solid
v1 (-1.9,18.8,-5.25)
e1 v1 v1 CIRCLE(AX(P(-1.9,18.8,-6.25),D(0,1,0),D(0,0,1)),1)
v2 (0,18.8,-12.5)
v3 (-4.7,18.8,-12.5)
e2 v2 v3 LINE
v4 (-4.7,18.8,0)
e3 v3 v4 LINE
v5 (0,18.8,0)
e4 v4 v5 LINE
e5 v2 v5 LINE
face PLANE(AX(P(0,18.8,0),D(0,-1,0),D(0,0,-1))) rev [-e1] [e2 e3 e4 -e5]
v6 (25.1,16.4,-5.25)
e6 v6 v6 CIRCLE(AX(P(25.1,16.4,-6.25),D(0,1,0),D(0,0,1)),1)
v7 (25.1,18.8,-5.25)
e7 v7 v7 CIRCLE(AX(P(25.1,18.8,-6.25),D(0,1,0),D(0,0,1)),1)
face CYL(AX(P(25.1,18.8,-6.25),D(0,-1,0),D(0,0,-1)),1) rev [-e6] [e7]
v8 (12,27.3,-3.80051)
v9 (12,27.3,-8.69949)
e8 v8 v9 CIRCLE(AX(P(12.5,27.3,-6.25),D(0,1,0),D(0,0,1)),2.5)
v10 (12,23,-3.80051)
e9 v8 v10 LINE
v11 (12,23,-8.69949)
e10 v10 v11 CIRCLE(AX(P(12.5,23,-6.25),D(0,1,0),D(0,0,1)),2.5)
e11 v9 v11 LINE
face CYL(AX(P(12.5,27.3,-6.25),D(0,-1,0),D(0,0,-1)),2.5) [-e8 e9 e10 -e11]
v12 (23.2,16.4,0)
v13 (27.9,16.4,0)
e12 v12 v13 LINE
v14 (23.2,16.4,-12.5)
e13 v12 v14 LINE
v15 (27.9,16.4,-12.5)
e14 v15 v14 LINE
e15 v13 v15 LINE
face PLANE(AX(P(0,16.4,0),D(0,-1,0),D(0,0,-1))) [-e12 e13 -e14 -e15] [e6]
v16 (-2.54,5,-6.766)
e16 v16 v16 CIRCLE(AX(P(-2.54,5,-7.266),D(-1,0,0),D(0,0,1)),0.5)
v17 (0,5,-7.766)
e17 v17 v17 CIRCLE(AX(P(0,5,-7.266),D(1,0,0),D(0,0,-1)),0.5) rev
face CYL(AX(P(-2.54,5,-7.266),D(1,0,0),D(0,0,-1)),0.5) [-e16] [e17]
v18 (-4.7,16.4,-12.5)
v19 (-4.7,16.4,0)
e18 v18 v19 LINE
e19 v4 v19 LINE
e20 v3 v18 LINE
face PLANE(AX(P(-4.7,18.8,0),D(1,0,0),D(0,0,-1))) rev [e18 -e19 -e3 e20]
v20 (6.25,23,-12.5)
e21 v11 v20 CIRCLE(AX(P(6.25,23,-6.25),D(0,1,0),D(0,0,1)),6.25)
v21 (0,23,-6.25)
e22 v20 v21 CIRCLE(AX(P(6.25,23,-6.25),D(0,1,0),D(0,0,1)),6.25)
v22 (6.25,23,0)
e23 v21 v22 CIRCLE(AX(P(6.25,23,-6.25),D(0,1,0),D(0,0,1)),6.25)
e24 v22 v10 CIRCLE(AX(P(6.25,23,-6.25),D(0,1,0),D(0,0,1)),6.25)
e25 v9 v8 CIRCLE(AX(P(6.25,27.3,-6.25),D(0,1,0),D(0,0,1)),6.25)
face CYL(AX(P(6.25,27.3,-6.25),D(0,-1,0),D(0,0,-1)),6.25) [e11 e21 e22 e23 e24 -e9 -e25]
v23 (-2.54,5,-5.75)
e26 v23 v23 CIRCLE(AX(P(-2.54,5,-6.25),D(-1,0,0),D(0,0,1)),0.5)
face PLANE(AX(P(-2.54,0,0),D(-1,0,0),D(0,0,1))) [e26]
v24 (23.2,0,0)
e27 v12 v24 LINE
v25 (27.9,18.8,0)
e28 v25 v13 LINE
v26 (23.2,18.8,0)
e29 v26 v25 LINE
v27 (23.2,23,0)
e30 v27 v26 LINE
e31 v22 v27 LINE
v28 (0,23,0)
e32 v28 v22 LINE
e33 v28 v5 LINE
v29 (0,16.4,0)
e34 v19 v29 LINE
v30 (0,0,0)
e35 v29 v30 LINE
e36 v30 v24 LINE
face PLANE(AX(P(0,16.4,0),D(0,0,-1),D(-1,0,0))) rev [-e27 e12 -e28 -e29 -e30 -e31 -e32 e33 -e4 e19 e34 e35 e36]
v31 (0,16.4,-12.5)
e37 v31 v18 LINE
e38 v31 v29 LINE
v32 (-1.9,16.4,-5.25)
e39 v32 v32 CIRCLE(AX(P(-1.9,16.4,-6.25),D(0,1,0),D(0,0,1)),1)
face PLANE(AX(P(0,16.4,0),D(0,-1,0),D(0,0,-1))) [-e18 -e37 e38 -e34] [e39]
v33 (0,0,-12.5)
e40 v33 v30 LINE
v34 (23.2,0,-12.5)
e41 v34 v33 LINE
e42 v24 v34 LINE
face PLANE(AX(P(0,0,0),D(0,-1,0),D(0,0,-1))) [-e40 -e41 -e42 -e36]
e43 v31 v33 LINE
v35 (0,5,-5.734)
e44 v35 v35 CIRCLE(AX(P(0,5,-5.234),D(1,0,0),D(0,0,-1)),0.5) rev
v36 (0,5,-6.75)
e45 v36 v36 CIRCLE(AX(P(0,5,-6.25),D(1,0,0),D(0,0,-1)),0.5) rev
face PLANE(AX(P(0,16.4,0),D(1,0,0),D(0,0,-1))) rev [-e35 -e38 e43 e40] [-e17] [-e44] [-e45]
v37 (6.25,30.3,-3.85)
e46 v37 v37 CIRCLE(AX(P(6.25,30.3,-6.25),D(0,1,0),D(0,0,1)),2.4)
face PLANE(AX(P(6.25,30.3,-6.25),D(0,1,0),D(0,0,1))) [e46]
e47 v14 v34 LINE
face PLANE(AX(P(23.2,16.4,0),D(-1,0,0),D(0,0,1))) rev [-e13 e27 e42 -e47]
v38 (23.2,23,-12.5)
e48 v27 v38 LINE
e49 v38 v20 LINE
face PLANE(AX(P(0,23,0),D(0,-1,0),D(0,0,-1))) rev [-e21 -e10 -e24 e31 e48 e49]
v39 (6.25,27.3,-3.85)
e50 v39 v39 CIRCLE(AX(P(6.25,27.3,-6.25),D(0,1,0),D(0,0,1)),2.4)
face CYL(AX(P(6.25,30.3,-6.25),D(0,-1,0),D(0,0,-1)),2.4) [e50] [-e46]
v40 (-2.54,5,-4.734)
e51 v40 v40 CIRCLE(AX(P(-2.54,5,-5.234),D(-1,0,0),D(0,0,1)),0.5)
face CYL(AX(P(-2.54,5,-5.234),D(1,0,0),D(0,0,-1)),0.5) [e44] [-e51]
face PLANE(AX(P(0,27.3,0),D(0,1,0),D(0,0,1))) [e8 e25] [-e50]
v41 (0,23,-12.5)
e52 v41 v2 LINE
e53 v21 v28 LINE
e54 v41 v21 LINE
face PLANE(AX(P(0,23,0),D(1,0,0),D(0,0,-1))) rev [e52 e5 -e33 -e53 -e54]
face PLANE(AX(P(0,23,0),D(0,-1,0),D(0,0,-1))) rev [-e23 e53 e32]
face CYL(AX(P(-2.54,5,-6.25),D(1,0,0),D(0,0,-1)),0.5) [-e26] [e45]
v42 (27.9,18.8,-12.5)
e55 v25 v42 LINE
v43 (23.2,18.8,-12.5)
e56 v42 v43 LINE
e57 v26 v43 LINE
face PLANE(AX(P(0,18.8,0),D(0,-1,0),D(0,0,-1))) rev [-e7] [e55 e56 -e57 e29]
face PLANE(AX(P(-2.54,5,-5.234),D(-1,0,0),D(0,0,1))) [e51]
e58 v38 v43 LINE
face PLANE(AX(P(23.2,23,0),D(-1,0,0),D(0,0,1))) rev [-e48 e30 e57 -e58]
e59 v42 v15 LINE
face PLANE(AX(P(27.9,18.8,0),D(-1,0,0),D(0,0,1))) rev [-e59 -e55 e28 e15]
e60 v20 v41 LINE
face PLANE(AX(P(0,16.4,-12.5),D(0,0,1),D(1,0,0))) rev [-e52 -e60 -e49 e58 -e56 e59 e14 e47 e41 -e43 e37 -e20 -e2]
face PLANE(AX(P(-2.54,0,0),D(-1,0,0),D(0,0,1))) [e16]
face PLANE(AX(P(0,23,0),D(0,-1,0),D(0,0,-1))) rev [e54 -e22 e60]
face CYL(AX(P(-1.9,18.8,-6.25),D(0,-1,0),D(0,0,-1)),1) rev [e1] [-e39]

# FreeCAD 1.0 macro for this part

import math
import FreeCAD as App
import Part
import Sketcher

V = App.Vector

doc = App.newDocument("Part")
params = doc.addObject("Spreadsheet::Sheet", "Params")
for row, (alias, value) in enumerate([
    ("sketch1_width", "23.2 mm"),
    ("sketch1_height", "12.5 mm"),
    ("pad1_length", "16.4 mm"),
    ("sketch2_diameter", "2 mm"),
    ("sketch2_width", "32.6 mm"),
    ("sketch2_height", "12.5 mm"),
    ("pad2_length", "2.4 mm"),
    ("sketch3_width", "23.2 mm"),
    ("sketch3_height", "12.5 mm"),
    ("pad3_length", "4.2 mm"),
    ("sketch4_radius", "2.5 mm"),
    ("sketch4_radius2", "6.25 mm"),
    ("pad4_length", "4.3 mm"),
    ("sketch5_diameter", "4.8 mm"),
    ("pad5_length", "3 mm"),
    ("sketch6_diameter", "1 mm"),
    ("pad6_length", "2.54 mm"),
], start=1):
    params.set(f"A{row}", alias)
    params.set(f"B{row}", "=" + value)
    params.setAlias(f"B{row}", alias)

body = doc.addObject("PartDesign::Body", "Body")

# Sketch on XZ plane
sketch1 = doc.addObject("Sketcher::SketchObject", "Sketch")
body.addObject(sketch1)
sketch1.AttachmentSupport = (doc.XZ_Plane, [""])
sketch1.MapMode = "FlatFace"
sketch1.addGeometry(Part.LineSegment(V(0, -12, 0), V(0, 0, 0)), False)
sketch1.addGeometry(Part.LineSegment(V(0, 0, 0), V(23, 0, 0)), False)
sketch1.addGeometry(Part.LineSegment(V(23, 0, 0), V(23, -12, 0)), False)
sketch1.addGeometry(Part.LineSegment(V(23, -12, 0), V(0, -12, 0)), False)
sketch1.addConstraint(Sketcher.Constraint("Coincident", 0, 2, 1, 1))
sketch1.addConstraint(Sketcher.Constraint("Coincident", 1, 2, 2, 1))
sketch1.addConstraint(Sketcher.Constraint("Coincident", 2, 2, 3, 1))
sketch1.addConstraint(Sketcher.Constraint("Coincident", 3, 2, 0, 1))
sketch1.addConstraint(Sketcher.Constraint("Vertical", 0))
sketch1.addConstraint(Sketcher.Constraint("Horizontal", 1))
sketch1.addConstraint(Sketcher.Constraint("Vertical", 2))
sketch1.addConstraint(Sketcher.Constraint("Horizontal", 3))
sketch1.addConstraint(Sketcher.Constraint("Coincident", 0, 2, -1, 1))
sketch1.addConstraint(Sketcher.Constraint("DistanceX", 1, 1, 1, 2, 23.2))
sketch1.addConstraint(Sketcher.Constraint("DistanceY", 0, 1, 0, 2, 12.5))
sketch1.setExpression("Constraints[9]", "Params.sketch1_width")
sketch1.setExpression("Constraints[10]", "Params.sketch1_height")
pad1 = doc.addObject("PartDesign::Pad", "Pad")
body.addObject(pad1)
pad1.Profile = sketch1
pad1.setExpression("Length", "Params.pad1_length")
pad1.Reversed = True

# Sketch on XZ plane
sketch2 = doc.addObject("Sketcher::SketchObject", "Sketch001")
body.addObject(sketch2)
sketch2.AttachmentSupport = (doc.XZ_Plane, [""])
sketch2.MapMode = "FlatFace"
sketch2.AttachmentOffset = App.Placement(V(0, 0, -16.4), App.Rotation())
sketch2.addGeometry(Part.LineSegment(V(-4.7, -12.5, 0), V(-4.7, 0, 0)), False)
sketch2.addGeometry(Part.LineSegment(V(-4.7, 0, 0), V(27.9, 0, 0)), False)
sketch2.addGeometry(Part.LineSegment(V(27.9, 0, 0), V(27.9, -12.5, 0)), False)
sketch2.addGeometry(Part.LineSegment(V(27.9, -12.5, 0), V(-4.7, -12.5, 0)), False)
sketch2.addGeometry(Part.Circle(V(-1.9, -6.2, 0), V(0, 0, 1), 1), False)
sketch2.addGeometry(Part.Circle(V(25.1, -6.2, 0), V(0, 0, 1), 1), False)
sketch2.addConstraint(Sketcher.Constraint("Coincident", 0, 2, 1, 1))
sketch2.addConstraint(Sketcher.Constraint("Coincident", 1, 2, 2, 1))
sketch2.addConstraint(Sketcher.Constraint("Coincident", 2, 2, 3, 1))
sketch2.addConstraint(Sketcher.Constraint("Coincident", 3, 2, 0, 1))
sketch2.addConstraint(Sketcher.Constraint("Vertical", 0))
sketch2.addConstraint(Sketcher.Constraint("Horizontal", 1))
sketch2.addConstraint(Sketcher.Constraint("Vertical", 2))
sketch2.addConstraint(Sketcher.Constraint("Horizontal", 3))
sketch2.addConstraint(Sketcher.Constraint("Equal", 4, 5))
sketch2.addConstraint(Sketcher.Constraint("PointOnObject", 0, 2, -1))
sketch2.addConstraint(Sketcher.Constraint("Horizontal", 4, 3, 5, 3))
sketch2.addConstraint(Sketcher.Constraint("Diameter", 4, 2.0))
sketch2.addConstraint(Sketcher.Constraint("DistanceX", 1, 1, 1, 2, 32.6))
sketch2.addConstraint(Sketcher.Constraint("DistanceY", 0, 1, 0, 2, 12.5))
sketch2.addConstraint(Sketcher.Constraint("DistanceX", 4, 3, 5, 3, 27.0))
sketch2.addConstraint(Sketcher.Constraint("DistanceX", 4, 3, -1, 1, 1.9))
sketch2.addConstraint(Sketcher.Constraint("DistanceX", 0, 2, -1, 1, 4.7))
sketch2.addConstraint(Sketcher.Constraint("DistanceY", 4, 3, -1, 1, 6.25))
sketch2.setExpression("Constraints[11]", "Params.sketch2_diameter")
sketch2.setExpression("Constraints[12]", "Params.sketch2_width")
sketch2.setExpression("Constraints[13]", "Params.sketch2_height")
pad2 = doc.addObject("PartDesign::Pad", "Pad001")
body.addObject(pad2)
pad2.Profile = sketch2
pad2.setExpression("Length", "Params.pad2_length")
pad2.Reversed = True

# Sketch on XZ plane
sketch3 = doc.addObject("Sketcher::SketchObject", "Sketch002")
body.addObject(sketch3)
sketch3.AttachmentSupport = (doc.XZ_Plane, [""])
sketch3.MapMode = "FlatFace"
sketch3.AttachmentOffset = App.Placement(V(0, 0, -18.8), App.Rotation())
sketch3.addGeometry(Part.LineSegment(V(0, -12, 0), V(0, 0, 0)), False)
sketch3.addGeometry(Part.LineSegment(V(0, 0, 0), V(23, 0, 0)), False)
sketch3.addGeometry(Part.LineSegment(V(23, 0, 0), V(23, -12, 0)), False)
sketch3.addGeometry(Part.LineSegment(V(23, -12, 0), V(0, -12, 0)), False)
sketch3.addConstraint(Sketcher.Constraint("Coincident", 0, 2, 1, 1))
sketch3.addConstraint(Sketcher.Constraint("Coincident", 1, 2, 2, 1))
sketch3.addConstraint(Sketcher.Constraint("Coincident", 2, 2, 3, 1))
sketch3.addConstraint(Sketcher.Constraint("Coincident", 3, 2, 0, 1))
sketch3.addConstraint(Sketcher.Constraint("Vertical", 0))
sketch3.addConstraint(Sketcher.Constraint("Horizontal", 1))
sketch3.addConstraint(Sketcher.Constraint("Vertical", 2))
sketch3.addConstraint(Sketcher.Constraint("Horizontal", 3))
sketch3.addConstraint(Sketcher.Constraint("Coincident", 0, 2, -1, 1))
sketch3.addConstraint(Sketcher.Constraint("DistanceX", 1, 1, 1, 2, 23.2))
sketch3.addConstraint(Sketcher.Constraint("DistanceY", 0, 1, 0, 2, 12.5))
sketch3.setExpression("Constraints[9]", "Params.sketch3_width")
sketch3.setExpression("Constraints[10]", "Params.sketch3_height")
pad3 = doc.addObject("PartDesign::Pad", "Pad002")
body.addObject(pad3)
pad3.Profile = sketch3
pad3.setExpression("Length", "Params.pad3_length")
pad3.Reversed = True

# Sketch on XZ plane
sketch4 = doc.addObject("Sketcher::SketchObject", "Sketch003")
body.addObject(sketch4)
sketch4.AttachmentSupport = (doc.XZ_Plane, [""])
sketch4.MapMode = "FlatFace"
sketch4.AttachmentOffset = App.Placement(V(0, 0, -23), App.Rotation())
sketch4.addGeometry(Part.ArcOfCircle(Part.Circle(V(6.2, -6.2, 0), V(0, 0, 1), 6.2), math.radians(23), math.radians(337)), False)
sketch4.addGeometry(Part.ArcOfCircle(Part.Circle(V(12.5, -6.2, 0), V(0, 0, 1), 2.5), math.radians(-102), math.radians(102)), False)
sketch4.addConstraint(Sketcher.Constraint("Coincident", 0, 1, 1, 2))
sketch4.addConstraint(Sketcher.Constraint("Coincident", 1, 1, 0, 2))
sketch4.addConstraint(Sketcher.Constraint("Horizontal", 0, 3, 1, 3))
sketch4.addConstraint(Sketcher.Constraint("Radius", 1, 2.5))
sketch4.addConstraint(Sketcher.Constraint("Radius", 0, 6.25))
sketch4.addConstraint(Sketcher.Constraint("DistanceX", -1, 1, 0, 1, 12.0))
sketch4.addConstraint(Sketcher.Constraint("DistanceX", -1, 1, 1, 3, 12.5))
sketch4.addConstraint(Sketcher.Constraint("DistanceY", 0, 3, -1, 1, 6.25))
sketch4.setExpression("Constraints[3]", "Params.sketch4_radius")
sketch4.setExpression("Constraints[4]", "Params.sketch4_radius2")
pad4 = doc.addObject("PartDesign::Pad", "Pad003")
body.addObject(pad4)
pad4.Profile = sketch4
pad4.setExpression("Length", "Params.pad4_length")
pad4.Reversed = True

# Sketch on XZ plane
sketch5 = doc.addObject("Sketcher::SketchObject", "Sketch004")
body.addObject(sketch5)
sketch5.AttachmentSupport = (doc.XZ_Plane, [""])
sketch5.MapMode = "FlatFace"
sketch5.AttachmentOffset = App.Placement(V(0, 0, -27.3), App.Rotation())
sketch5.addGeometry(Part.Circle(V(6.2, -6.2, 0), V(0, 0, 1), 2.4), False)
sketch5.addConstraint(Sketcher.Constraint("Diameter", 0, 4.8))
sketch5.addConstraint(Sketcher.Constraint("DistanceX", -1, 1, 0, 3, 6.25))
sketch5.addConstraint(Sketcher.Constraint("DistanceY", 0, 3, -1, 1, 6.25))
sketch5.setExpression("Constraints[0]", "Params.sketch5_diameter")
pad5 = doc.addObject("PartDesign::Pad", "Pad004")
body.addObject(pad5)
pad5.Profile = sketch5
pad5.setExpression("Length", "Params.pad5_length")
pad5.Reversed = True

# Sketch on YZ plane
sketch6 = doc.addObject("Sketcher::SketchObject", "Sketch005")
body.addObject(sketch6)
sketch6.AttachmentSupport = (doc.YZ_Plane, [""])
sketch6.MapMode = "FlatFace"
sketch6.addGeometry(Part.Circle(V(5, -6.2, 0), V(0, 0, 1), 0.5), False)
sketch6.addGeometry(Part.Circle(V(5, -7.3, 0), V(0, 0, 1), 0.5), False)
sketch6.addGeometry(Part.Circle(V(5, -5.2, 0), V(0, 0, 1), 0.5), False)
sketch6.addConstraint(Sketcher.Constraint("Equal", 0, 1))
sketch6.addConstraint(Sketcher.Constraint("Equal", 1, 2))
sketch6.addConstraint(Sketcher.Constraint("Vertical", 0, 3, 1, 3))
sketch6.addConstraint(Sketcher.Constraint("Vertical", 1, 3, 2, 3))
sketch6.addConstraint(Sketcher.Constraint("Diameter", 0, 1.0))
sketch6.addConstraint(Sketcher.Constraint("DistanceX", -1, 1, 0, 3, 5.0))
sketch6.addConstraint(Sketcher.Constraint("DistanceY", 0, 3, -1, 1, 6.25))
sketch6.addConstraint(Sketcher.Constraint("DistanceY", 1, 3, -1, 1, 7.266))
sketch6.addConstraint(Sketcher.Constraint("DistanceY", 2, 3, -1, 1, 5.234))
sketch6.setExpression("Constraints[4]", "Params.sketch6_diameter")
pad6 = doc.addObject("PartDesign::Pad", "Pad005")
body.addObject(pad6)
pad6.Profile = sketch6
pad6.setExpression("Length", "Params.pad6_length")
pad6.Reversed = True

doc.recompute()
